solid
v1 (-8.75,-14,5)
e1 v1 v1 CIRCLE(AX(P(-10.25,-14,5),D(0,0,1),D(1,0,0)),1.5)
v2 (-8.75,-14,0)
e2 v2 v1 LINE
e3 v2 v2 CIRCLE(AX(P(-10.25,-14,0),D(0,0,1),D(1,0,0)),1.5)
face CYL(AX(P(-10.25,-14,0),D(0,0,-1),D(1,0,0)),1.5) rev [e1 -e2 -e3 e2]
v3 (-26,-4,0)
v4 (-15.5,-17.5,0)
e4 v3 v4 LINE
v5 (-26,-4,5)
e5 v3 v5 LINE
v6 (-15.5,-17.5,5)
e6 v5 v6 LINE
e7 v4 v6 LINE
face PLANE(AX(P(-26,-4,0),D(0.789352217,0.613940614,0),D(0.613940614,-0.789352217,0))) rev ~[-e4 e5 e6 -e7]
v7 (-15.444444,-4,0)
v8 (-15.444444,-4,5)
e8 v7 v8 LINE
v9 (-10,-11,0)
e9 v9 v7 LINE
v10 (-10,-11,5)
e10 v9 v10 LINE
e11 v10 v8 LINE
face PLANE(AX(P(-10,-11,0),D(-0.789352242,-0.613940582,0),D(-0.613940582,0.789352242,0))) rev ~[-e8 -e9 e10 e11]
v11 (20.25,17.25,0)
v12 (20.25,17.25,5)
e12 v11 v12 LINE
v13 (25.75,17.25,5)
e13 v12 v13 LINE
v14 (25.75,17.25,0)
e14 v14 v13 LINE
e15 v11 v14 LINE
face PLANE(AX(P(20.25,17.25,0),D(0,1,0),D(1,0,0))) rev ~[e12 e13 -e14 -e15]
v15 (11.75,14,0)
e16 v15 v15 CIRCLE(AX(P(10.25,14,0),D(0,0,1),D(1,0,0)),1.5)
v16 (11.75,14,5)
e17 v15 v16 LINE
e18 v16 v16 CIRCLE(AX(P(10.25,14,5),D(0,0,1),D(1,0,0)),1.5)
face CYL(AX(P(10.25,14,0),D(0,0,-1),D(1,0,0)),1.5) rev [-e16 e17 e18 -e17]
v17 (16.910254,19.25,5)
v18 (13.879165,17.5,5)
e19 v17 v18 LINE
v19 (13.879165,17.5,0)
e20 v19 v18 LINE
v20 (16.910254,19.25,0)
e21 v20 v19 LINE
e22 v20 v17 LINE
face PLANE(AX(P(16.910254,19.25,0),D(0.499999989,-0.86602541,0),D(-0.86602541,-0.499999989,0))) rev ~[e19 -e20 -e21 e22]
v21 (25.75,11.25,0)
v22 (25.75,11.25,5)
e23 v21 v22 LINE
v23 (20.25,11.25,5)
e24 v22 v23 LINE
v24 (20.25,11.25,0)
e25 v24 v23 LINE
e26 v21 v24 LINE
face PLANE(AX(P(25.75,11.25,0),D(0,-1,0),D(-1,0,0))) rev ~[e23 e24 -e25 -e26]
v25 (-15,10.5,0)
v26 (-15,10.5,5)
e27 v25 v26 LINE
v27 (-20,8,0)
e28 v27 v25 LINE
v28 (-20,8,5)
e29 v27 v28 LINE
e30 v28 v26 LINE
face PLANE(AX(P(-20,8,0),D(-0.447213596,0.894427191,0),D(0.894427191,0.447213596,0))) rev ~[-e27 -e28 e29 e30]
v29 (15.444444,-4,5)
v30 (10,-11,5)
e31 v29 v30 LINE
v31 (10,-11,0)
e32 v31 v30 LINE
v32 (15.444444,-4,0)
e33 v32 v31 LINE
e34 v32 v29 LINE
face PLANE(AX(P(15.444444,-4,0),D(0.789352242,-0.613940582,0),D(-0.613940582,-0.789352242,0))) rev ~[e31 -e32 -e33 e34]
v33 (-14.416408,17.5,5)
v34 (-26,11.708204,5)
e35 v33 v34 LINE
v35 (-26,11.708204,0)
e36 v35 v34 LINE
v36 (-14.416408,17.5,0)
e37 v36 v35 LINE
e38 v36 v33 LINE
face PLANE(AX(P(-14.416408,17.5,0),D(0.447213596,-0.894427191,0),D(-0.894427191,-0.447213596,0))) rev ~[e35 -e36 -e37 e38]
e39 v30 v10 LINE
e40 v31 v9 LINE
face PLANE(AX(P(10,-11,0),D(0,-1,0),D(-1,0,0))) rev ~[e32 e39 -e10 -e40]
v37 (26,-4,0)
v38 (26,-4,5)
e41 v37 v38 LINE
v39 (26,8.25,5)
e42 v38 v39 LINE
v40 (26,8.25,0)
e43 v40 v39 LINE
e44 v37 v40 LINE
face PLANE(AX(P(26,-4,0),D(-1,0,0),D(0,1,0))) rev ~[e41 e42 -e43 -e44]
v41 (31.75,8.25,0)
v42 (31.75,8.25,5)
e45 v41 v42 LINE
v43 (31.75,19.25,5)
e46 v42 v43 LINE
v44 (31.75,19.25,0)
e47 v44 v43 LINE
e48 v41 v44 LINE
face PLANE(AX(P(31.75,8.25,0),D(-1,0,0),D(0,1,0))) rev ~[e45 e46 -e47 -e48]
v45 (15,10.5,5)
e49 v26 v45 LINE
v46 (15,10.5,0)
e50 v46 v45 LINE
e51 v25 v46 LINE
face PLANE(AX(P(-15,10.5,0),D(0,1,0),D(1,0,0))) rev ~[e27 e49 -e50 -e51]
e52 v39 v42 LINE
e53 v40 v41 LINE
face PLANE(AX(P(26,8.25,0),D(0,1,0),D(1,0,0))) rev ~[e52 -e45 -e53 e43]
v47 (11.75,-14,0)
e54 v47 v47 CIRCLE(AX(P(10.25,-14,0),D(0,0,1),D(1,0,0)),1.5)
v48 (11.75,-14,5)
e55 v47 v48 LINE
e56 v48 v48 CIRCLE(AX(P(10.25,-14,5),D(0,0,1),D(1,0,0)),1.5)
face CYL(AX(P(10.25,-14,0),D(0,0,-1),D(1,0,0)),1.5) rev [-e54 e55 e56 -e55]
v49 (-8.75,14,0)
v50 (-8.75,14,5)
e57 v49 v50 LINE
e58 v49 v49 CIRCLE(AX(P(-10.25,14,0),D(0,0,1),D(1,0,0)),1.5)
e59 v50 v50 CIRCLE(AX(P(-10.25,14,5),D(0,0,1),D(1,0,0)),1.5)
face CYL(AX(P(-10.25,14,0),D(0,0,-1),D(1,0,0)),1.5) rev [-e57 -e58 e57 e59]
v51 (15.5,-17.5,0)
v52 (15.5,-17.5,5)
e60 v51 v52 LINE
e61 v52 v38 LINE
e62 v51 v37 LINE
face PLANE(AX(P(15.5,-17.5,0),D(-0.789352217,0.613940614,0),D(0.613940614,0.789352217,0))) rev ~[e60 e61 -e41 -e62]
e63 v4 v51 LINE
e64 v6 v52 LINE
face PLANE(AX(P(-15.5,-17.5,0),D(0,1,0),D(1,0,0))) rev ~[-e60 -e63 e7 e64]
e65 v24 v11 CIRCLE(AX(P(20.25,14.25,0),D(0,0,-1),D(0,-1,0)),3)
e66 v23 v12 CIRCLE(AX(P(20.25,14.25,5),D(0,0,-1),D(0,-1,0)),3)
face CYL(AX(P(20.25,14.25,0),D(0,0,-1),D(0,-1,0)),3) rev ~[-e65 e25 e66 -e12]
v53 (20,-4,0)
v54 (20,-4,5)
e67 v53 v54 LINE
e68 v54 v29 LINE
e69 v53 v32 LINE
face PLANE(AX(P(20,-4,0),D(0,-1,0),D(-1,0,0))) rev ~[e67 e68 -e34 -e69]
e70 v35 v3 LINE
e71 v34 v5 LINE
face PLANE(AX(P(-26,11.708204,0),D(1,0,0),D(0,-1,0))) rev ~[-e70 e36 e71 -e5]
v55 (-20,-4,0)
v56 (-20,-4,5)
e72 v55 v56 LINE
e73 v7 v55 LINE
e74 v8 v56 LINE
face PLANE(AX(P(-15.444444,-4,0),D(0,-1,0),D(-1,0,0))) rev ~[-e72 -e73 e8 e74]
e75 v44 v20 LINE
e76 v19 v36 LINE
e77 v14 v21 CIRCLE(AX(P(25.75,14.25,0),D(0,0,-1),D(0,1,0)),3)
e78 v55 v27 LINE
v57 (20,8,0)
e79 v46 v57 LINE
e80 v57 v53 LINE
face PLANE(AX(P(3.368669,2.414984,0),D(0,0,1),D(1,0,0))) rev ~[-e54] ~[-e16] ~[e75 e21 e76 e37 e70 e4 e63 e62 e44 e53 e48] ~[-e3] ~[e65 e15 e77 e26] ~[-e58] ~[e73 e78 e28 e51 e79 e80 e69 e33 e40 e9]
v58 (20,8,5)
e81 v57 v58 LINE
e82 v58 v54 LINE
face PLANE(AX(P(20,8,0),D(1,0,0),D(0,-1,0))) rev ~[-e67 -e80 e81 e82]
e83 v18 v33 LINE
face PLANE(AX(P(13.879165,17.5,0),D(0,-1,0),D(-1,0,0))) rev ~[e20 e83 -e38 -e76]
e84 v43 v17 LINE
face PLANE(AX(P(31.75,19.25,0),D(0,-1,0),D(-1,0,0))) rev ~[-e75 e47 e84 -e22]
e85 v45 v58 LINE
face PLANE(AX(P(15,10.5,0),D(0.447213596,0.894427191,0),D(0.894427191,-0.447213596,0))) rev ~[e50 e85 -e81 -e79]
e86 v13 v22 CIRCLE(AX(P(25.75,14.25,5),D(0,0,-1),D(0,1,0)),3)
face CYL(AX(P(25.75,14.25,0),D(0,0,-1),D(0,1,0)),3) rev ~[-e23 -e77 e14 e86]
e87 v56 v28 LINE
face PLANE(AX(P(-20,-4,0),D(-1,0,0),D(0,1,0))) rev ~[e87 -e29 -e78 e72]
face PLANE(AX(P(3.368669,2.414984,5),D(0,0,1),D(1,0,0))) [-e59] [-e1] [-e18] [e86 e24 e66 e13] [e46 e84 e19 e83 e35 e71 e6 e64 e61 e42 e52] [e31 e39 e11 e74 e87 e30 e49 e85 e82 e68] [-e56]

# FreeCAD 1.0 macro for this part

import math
import FreeCAD as App
import Part
import Sketcher
from FreeCAD import Vector
Q = App.Units.Quantity


def add_polygon(sketch, points):
    """Adds a closed chain of lines whose ends are joined by coincident constraints."""
    first, n = sketch.GeometryCount, len(points)
    for a, b in zip(points, points[1:] + points[:1]):
        sketch.addGeometry(Part.LineSegment(App.Vector(*a, 0), App.Vector(*b, 0)), False)
    for i in range(n):
        sketch.addConstraint(Sketcher.Constraint("Coincident", first + i, 2, first + (i + 1) % n, 1))

doc = App.newDocument("Part")
body = doc.addObject("PartDesign::Body", "Body")

# Sketch on XY plane
sketch1 = body.newObject("Sketcher::SketchObject", "Sketch")
sketch1.AttachmentSupport = (doc.getObject("XY_Plane"), [""])
sketch1.MapMode = "FlatFace"
add_polygon(sketch1, [(-26, -4), (-15.5, -17.5), (15.5, -17.5), (26, -4), (26, 8.2), (31.8, 8.2), (31.8, 19.2), (16.9, 19.2), (13.9, 17.5), (-14.4, 17.5), (-26, 11.7)])  # lines 0-10
sketch1.addGeometry(Part.Circle(Vector(-10.2, -14, 0), Vector(0, 0, 1), 1.5), False)  # 11
add_polygon(sketch1, [(-15.4, -4), (-20, -4), (-20, 8), (-15, 10.5), (15, 10.5), (20, 8), (20, -4), (15.4, -4), (10, -11), (-10, -11)])  # lines 12-21
sketch1.addGeometry(Part.Circle(Vector(10.2, -14, 0), Vector(0, 0, 1), 1.5), False)  # 22
sketch1.addGeometry(Part.Circle(Vector(-10.2, 14, 0), Vector(0, 0, 1), 1.5), False)  # 23
sketch1.addGeometry(Part.Circle(Vector(10.2, 14, 0), Vector(0, 0, 1), 1.5), False)  # 24
sketch1.addGeometry(Part.LineSegment(Vector(25.8, 11.2, 0), Vector(20.2, 11.2, 0)), False)  # 25
sketch1.addGeometry(Part.ArcOfCircle(Part.Circle(Vector(20.2, 14.2, 0), Vector(0, 0, 1), 3), math.radians(90), math.radians(270)), False)  # 26
sketch1.addGeometry(Part.LineSegment(Vector(20.2, 17.2, 0), Vector(25.8, 17.2, 0)), False)  # 27
sketch1.addGeometry(Part.ArcOfCircle(Part.Circle(Vector(25.8, 14.2, 0), Vector(0, 0, 1), 3), math.radians(-90), math.radians(90)), False)  # 28
sketch1.addConstraint(Sketcher.Constraint("Tangent", 25, 2, 26, 2))
sketch1.addConstraint(Sketcher.Constraint("Tangent", 26, 1, 27, 1))
sketch1.addConstraint(Sketcher.Constraint("Tangent", 27, 2, 28, 2))
sketch1.addConstraint(Sketcher.Constraint("Tangent", 28, 1, 25, 1))
sketch1.addConstraint(Sketcher.Constraint("Horizontal", 1))
sketch1.addConstraint(Sketcher.Constraint("Vertical", 3))
sketch1.addConstraint(Sketcher.Constraint("Horizontal", 4))
sketch1.addConstraint(Sketcher.Constraint("Vertical", 5))
sketch1.addConstraint(Sketcher.Constraint("Horizontal", 6))
sketch1.addConstraint(Sketcher.Constraint("Horizontal", 8))
sketch1.addConstraint(Sketcher.Constraint("Vertical", 10))
sketch1.addConstraint(Sketcher.Constraint("Horizontal", 12))
sketch1.addConstraint(Sketcher.Constraint("Vertical", 13))
sketch1.addConstraint(Sketcher.Constraint("Horizontal", 15))
sketch1.addConstraint(Sketcher.Constraint("Vertical", 17))
sketch1.addConstraint(Sketcher.Constraint("Horizontal", 18))
sketch1.addConstraint(Sketcher.Constraint("Horizontal", 20))
sketch1.addConstraint(Sketcher.Constraint("Horizontal", 25))
sketch1.addConstraint(Sketcher.Constraint("Horizontal", 27))
sketch1.addConstraint(Sketcher.Constraint("Equal", 11, 22))
sketch1.addConstraint(Sketcher.Constraint("Equal", 22, 23))
sketch1.addConstraint(Sketcher.Constraint("Equal", 23, 24))
sketch1.addConstraint(Sketcher.Constraint("Symmetric", 22, 3, 23, 3, -1, 1))
sketch1.addConstraint(Sketcher.Constraint("Symmetric", 11, 3, 24, 3, -1, 1))
sketch1.addConstraint(Sketcher.Constraint("Symmetric", 11, 3, 22, 3, -2))
sketch1.addConstraint(Sketcher.Constraint("Symmetric", 2, 2, 10, 2, -2))
sketch1.addConstraint(Sketcher.Constraint("Symmetric", 13, 2, 16, 2, -2))
sketch1.addConstraint(Sketcher.Constraint("Symmetric", 18, 2, 21, 2, -2))
sketch1.addConstraint(Sketcher.Constraint("Parallel", 9, 14))
sketch1.addConstraint(Sketcher.Constraint("Parallel", 2, 19))
sketch1.addConstraint(Sketcher.Constraint("Parallel", 0, 21))
sketch1.addConstraint(Sketcher.Constraint("Horizontal", 10, 2, 12, 2))
sketch1.addConstraint(Sketcher.Constraint("Equal", 0, 2))
sketch1.addConstraint(Sketcher.Constraint("Equal", 14, 16))
sketch1.addConstraint(Sketcher.Constraint("Diameter", 11, Q("3 mm")))
sketch1.addConstraint(Sketcher.Constraint("Radius", 26, Q("3 mm")))
sketch1.addConstraint(Sketcher.Constraint("DistanceX", 1, 1, 1, 2, Q("31 mm")))
sketch1.addConstraint(Sketcher.Constraint("DistanceX", 15, 1, 15, 2, Q("30 mm")))
sketch1.addConstraint(Sketcher.Constraint("DistanceX", 20, 2, 20, 1, Q("20 mm")))
sketch1.addConstraint(Sketcher.Constraint("DistanceY", 5, 1, 5, 2, Q("11 mm")))
sketch1.addConstraint(Sketcher.Constraint("DistanceY", 13, 1, 13, 2, Q("12 mm")))
sketch1.addConstraint(Sketcher.Constraint("Angle", 7, Q("-150.000001 deg")))
sketch1.addConstraint(Sketcher.Constraint("DistanceX", 25, 2, 25, 1, Q("5.5 mm")))
sketch1.addConstraint(Sketcher.Constraint("DistanceY", 11, 3, -1, 1, Q("14 mm")))
sketch1.addConstraint(Sketcher.Constraint("DistanceX", -1, 1, 2, 2, Q("26 mm")))
sketch1.addConstraint(Sketcher.Constraint("DistanceY", 2, 2, -1, 1, Q("4 mm")))
sketch1.addConstraint(Sketcher.Constraint("DistanceX", 12, 2, -1, 1, Q("20 mm")))
sketch1.addConstraint(Sketcher.Constraint("DistanceY", 19, 2, -1, 1, Q("11 mm")))
sketch1.addConstraint(Sketcher.Constraint("DistanceX", 24, 3, 26, 3, Q("10 mm")))
sketch1.addConstraint(Sketcher.Constraint("DistanceX", 23, 3, 28, 3, Q("36 mm")))
sketch1.addConstraint(Sketcher.Constraint("DistanceY", 3, 2, 28, 3, Q("6 mm")))
sketch1.addConstraint(Sketcher.Constraint("DistanceX", 28, 3, 4, 2, Q("6 mm")))
sketch1.addConstraint(Sketcher.Constraint("DistanceY", 14, 2, 8, 2, Q("7 mm")))
sketch1.addConstraint(Sketcher.Constraint("Distance", 7, Q("3.5 mm")))
sketch1.addConstraint(Sketcher.Constraint("DistanceY", 3, 1, 3, 2, Q("12.25 mm")))
sketch1.addConstraint(Sketcher.Constraint("DistanceY", 0, 2, -1, 1, Q("17.5 mm")))
sketch1.addConstraint(Sketcher.Constraint("Distance", 9, Q("12.95085 mm")))
sketch1.addConstraint(Sketcher.Constraint("DistanceX", 6, 2, 6, 1, Q("14.839746 mm")))
pad1 = body.newObject("PartDesign::Pad", "Pad")
pad1.Profile = sketch1
pad1.Length = 5

doc.recompute()
